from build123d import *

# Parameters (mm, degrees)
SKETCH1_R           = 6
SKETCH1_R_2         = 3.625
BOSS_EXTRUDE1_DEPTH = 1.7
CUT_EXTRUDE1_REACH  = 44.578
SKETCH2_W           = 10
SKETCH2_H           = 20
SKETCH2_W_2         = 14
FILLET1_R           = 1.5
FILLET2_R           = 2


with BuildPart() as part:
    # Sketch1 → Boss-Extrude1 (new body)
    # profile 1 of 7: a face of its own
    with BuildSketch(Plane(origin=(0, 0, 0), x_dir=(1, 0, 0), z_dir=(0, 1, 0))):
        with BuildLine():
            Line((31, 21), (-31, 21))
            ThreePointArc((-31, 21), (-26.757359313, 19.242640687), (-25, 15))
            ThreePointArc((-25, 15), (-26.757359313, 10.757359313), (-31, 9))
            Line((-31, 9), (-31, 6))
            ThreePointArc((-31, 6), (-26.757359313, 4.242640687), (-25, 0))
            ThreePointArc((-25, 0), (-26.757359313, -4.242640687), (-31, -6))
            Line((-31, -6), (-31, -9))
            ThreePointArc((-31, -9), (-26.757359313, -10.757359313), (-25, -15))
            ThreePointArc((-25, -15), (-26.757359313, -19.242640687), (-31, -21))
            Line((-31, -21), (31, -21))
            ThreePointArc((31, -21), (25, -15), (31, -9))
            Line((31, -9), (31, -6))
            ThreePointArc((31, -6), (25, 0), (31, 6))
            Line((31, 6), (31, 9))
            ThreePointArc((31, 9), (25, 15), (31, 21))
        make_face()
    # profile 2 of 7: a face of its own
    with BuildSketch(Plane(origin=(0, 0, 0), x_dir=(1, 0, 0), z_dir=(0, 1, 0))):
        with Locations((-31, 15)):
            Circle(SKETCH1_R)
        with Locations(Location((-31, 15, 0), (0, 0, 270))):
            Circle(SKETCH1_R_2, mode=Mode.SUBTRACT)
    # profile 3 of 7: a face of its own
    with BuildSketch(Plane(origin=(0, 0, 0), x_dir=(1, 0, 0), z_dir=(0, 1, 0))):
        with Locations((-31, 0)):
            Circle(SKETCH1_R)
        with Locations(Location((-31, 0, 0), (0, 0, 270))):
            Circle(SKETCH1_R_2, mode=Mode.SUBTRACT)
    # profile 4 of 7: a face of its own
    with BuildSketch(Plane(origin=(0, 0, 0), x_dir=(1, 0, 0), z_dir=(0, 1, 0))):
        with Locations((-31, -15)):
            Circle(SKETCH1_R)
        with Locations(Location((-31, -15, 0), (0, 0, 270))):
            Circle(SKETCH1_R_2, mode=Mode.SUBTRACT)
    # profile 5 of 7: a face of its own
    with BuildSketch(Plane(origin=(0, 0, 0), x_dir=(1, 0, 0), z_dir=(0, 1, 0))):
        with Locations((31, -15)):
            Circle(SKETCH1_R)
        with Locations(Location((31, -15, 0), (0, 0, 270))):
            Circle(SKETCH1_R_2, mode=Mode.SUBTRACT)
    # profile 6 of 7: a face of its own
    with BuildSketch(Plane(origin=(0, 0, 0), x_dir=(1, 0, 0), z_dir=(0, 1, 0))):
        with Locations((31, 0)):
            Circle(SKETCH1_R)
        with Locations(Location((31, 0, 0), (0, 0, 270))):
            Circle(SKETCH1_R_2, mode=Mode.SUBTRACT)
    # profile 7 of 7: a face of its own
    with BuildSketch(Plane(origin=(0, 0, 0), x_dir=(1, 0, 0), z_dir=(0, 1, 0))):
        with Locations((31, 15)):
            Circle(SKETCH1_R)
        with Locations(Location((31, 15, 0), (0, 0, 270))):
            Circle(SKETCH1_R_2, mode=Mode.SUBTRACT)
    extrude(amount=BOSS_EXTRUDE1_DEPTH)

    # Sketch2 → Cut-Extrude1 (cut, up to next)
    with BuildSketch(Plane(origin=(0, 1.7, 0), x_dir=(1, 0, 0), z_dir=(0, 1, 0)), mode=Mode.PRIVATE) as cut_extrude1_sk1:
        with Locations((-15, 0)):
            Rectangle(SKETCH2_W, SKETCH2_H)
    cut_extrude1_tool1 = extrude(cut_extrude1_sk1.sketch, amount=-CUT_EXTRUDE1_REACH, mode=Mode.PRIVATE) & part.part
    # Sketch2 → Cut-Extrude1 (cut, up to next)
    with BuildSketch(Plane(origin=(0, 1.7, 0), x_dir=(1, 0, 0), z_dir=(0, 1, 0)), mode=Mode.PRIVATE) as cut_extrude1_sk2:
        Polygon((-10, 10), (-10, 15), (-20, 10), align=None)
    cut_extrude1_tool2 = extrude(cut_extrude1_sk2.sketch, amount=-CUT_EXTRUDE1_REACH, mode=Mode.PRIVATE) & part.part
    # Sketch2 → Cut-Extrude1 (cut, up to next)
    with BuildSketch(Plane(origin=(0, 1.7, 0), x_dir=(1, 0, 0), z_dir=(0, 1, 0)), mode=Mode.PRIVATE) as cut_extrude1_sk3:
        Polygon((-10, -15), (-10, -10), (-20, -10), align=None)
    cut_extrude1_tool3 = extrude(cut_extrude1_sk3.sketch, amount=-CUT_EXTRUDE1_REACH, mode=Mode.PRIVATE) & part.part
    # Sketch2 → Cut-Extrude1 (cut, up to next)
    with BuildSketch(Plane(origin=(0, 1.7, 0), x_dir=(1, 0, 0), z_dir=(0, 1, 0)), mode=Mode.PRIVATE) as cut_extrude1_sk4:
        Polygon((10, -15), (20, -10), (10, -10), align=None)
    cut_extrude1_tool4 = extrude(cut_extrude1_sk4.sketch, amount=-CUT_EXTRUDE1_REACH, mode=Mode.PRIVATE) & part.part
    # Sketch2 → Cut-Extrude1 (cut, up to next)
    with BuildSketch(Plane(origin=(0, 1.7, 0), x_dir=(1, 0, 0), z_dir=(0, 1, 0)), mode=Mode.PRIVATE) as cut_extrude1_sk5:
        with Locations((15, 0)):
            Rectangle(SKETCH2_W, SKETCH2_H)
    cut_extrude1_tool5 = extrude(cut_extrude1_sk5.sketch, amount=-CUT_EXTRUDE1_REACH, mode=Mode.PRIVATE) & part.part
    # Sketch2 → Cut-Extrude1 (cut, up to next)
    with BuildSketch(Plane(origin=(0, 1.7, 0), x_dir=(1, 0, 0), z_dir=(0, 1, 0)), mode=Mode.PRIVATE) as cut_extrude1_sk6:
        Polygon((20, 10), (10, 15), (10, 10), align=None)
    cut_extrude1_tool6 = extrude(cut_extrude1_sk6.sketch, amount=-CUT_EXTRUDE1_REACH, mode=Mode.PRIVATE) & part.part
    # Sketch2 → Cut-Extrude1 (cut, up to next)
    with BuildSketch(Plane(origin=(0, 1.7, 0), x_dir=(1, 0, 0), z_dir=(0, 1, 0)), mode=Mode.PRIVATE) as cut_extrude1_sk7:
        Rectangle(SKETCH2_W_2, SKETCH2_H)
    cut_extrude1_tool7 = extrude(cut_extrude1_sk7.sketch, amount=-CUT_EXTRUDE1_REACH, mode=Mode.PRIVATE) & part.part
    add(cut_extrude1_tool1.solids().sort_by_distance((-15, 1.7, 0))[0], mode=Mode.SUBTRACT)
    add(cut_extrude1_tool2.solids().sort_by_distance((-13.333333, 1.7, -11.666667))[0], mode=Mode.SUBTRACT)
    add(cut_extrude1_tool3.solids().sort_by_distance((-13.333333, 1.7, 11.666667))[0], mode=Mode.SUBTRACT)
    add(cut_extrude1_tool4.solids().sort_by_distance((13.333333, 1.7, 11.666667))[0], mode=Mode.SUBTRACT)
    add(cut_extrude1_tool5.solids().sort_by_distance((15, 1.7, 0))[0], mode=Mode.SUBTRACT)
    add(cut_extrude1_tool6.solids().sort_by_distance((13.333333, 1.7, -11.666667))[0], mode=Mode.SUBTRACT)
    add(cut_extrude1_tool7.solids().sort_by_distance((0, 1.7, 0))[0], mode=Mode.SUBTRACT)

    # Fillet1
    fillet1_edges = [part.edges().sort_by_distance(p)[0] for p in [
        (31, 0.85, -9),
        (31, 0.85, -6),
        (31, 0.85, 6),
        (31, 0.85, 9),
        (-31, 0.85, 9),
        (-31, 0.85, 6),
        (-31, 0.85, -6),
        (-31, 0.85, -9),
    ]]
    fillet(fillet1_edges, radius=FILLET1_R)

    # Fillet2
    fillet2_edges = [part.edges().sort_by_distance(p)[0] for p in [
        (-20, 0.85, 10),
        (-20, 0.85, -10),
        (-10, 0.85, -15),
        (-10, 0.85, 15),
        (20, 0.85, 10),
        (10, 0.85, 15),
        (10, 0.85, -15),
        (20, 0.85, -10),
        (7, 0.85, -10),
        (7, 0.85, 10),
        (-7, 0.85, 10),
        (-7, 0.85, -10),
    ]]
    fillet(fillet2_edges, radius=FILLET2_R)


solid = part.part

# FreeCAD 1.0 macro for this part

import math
import FreeCAD as App
import Part
import Sketcher
from FreeCAD import Vector
Q = App.Units.Quantity


def edges_at(feature, points):
    """Names of the edges that pass closest to the given points."""
    edges = feature.Shape.Edges
    near = lambda p: min(range(len(edges)), key=lambda i: edges[i].distToShape(Part.Vertex(*p))[0])
    return sorted({f"Edge{near(p) + 1}" for p in points})

doc = App.newDocument("Part")
params = doc.addObject("Spreadsheet::Sheet", "Params")
for row, (alias, value) in enumerate([
    ("sketch1_radius", "6 mm"),
    ("sketch1_diameter", "7.25 mm"),
    ("sketch1_width", "62 mm"),
    ("sketch1_height", "3 mm"),
    ("pad1_length", "1.7 mm"),
    ("sketch2_width", "10 mm"),
    ("sketch2_height", "20 mm"),
    ("sketch3_width", "10 mm"),
    ("sketch3_height", "5 mm"),
    ("sketch4_width", "10 mm"),
    ("sketch4_height", "5 mm"),
    ("sketch5_width", "10 mm"),
    ("sketch5_height", "5 mm"),
    ("sketch6_width", "10 mm"),
    ("sketch6_height", "20 mm"),
    ("sketch7_width", "10 mm"),
    ("sketch7_height", "5 mm"),
    ("sketch8_width", "14 mm"),
    ("sketch8_height", "20 mm"),
    ("fillet_radius", "1.5 mm"),
    ("fillet2_radius", "2 mm"),
], start=1):
    params.set(f"A{row}", alias)
    params.set(f"B{row}", "=" + value)
    params.setAlias(f"B{row}", alias)

body = doc.addObject("PartDesign::Body", "Body")

# Sketch on XZ plane
sketch1 = body.newObject("Sketcher::SketchObject", "Sketch")
sketch1.AttachmentSupport = (doc.getObject("XZ_Plane"), [""])
sketch1.MapMode = "FlatFace"
sketch1.addGeometry([
    Part.LineSegment(Vector(31, -21, 0), Vector(-31, -21, 0)),  # 0
    Part.ArcOfCircle(Part.Circle(Vector(-31, -15, 0), Vector(0, 0, 1), 6), math.radians(90), math.radians(270)),  # 1
    Part.LineSegment(Vector(-31, -9, 0), Vector(-31, -6, 0)),  # 2
    Part.ArcOfCircle(Part.Circle(Vector(-31, 0, 0), Vector(0, 0, 1), 6), math.radians(90), math.radians(270)),  # 3
    Part.LineSegment(Vector(-31, 6, 0), Vector(-31, 9, 0)),  # 4
    Part.ArcOfCircle(Part.Circle(Vector(-31, 15, 0), Vector(0, 0, 1), 6), math.radians(90), math.radians(270)),  # 5
    Part.LineSegment(Vector(-31, 21, 0), Vector(31, 21, 0)),  # 6
    Part.ArcOfCircle(Part.Circle(Vector(31, 15, 0), Vector(0, 0, 1), 6), math.radians(-90), math.radians(90)),  # 7
    Part.LineSegment(Vector(31, 9, 0), Vector(31, 6, 0)),  # 8
    Part.ArcOfCircle(Part.Circle(Vector(31, 0, 0), Vector(0, 0, 1), 6), math.radians(-90), math.radians(90)),  # 9
    Part.LineSegment(Vector(31, -6, 0), Vector(31, -9, 0)),  # 10
    Part.ArcOfCircle(Part.Circle(Vector(31, -15, 0), Vector(0, 0, 1), 6), math.radians(-90), math.radians(90)),  # 11
    Part.Circle(Vector(-31, -15, 0), Vector(0, 0, 1), 3.6),  # 12
    Part.Circle(Vector(-31, 0, 0), Vector(0, 0, 1), 3.6),  # 13
    Part.Circle(Vector(-31, 15, 0), Vector(0, 0, 1), 3.6),  # 14
    Part.Circle(Vector(31, 15, 0), Vector(0, 0, 1), 3.6),  # 15
    Part.Circle(Vector(31, 0, 0), Vector(0, 0, 1), 3.6),  # 16
    Part.Circle(Vector(31, -15, 0), Vector(0, 0, 1), 3.6),  # 17
], False)
sketch1.addConstraint([
    Sketcher.Constraint("Tangent", 0, 2, 1, 2),
    Sketcher.Constraint("Coincident", 1, 1, 2, 1),
    Sketcher.Constraint("Coincident", 2, 2, 3, 2),
    Sketcher.Constraint("Coincident", 3, 1, 4, 1),
    Sketcher.Constraint("Coincident", 4, 2, 5, 2),
    Sketcher.Constraint("Tangent", 5, 1, 6, 1),
    Sketcher.Constraint("Tangent", 6, 2, 7, 2),
    Sketcher.Constraint("Coincident", 7, 1, 8, 1),
    Sketcher.Constraint("Coincident", 8, 2, 9, 2),
    Sketcher.Constraint("Coincident", 9, 1, 10, 1),
    Sketcher.Constraint("Coincident", 10, 2, 11, 2),
    Sketcher.Constraint("Tangent", 11, 1, 0, 1),
    Sketcher.Constraint("Horizontal", 0),
    Sketcher.Constraint("Vertical", 2),
    Sketcher.Constraint("Vertical", 4),
    Sketcher.Constraint("Horizontal", 6),
    Sketcher.Constraint("Vertical", 8),
    Sketcher.Constraint("Vertical", 10),
    Sketcher.Constraint("Coincident", 12, 3, 1, 3),
    Sketcher.Constraint("Coincident", 13, 3, 3, 3),
    Sketcher.Constraint("Coincident", 14, 3, 5, 3),
    Sketcher.Constraint("Coincident", 15, 3, 7, 3),
    Sketcher.Constraint("Coincident", 16, 3, 9, 3),
    Sketcher.Constraint("Coincident", 17, 3, 11, 3),
    Sketcher.Constraint("Equal", 1, 3),
    Sketcher.Constraint("Equal", 3, 5),
    Sketcher.Constraint("Equal", 5, 7),
    Sketcher.Constraint("Equal", 7, 9),
    Sketcher.Constraint("Equal", 9, 11),
    Sketcher.Constraint("Equal", 12, 13),
    Sketcher.Constraint("Equal", 13, 14),
    Sketcher.Constraint("Equal", 14, 15),
    Sketcher.Constraint("Equal", 15, 16),
    Sketcher.Constraint("Equal", 16, 17),
    Sketcher.Constraint("Symmetric", 1, 3, 7, 3, -1, 1),
    Sketcher.Constraint("Symmetric", 3, 3, 9, 3, -1, 1),
    Sketcher.Constraint("Symmetric", 3, 1, 8, 2, -2),
    Sketcher.Constraint("Vertical", 1, 3, 3, 3),
    Sketcher.Constraint("Vertical", 3, 3, 5, 3),
    Sketcher.Constraint("Vertical", 9, 3, 11, 3),
    Sketcher.Constraint("Vertical", 0, 2, 1, 1),
    Sketcher.Constraint("Vertical", 2, 2, 3, 1),
    Sketcher.Constraint("Vertical", 8, 2, 9, 1),
    Sketcher.Constraint("Radius", 1, Q("6 mm")),
    Sketcher.Constraint("Diameter", 12, Q("7.25 mm")),
    Sketcher.Constraint("DistanceX", 0, 2, 0, 1, Q("62 mm")),
    Sketcher.Constraint("DistanceY", 2, 1, 2, 2, Q("3 mm")),
])
sketch1.setExpression("Constraints[43]", "Params.sketch1_radius")
sketch1.setExpression("Constraints[44]", "Params.sketch1_diameter")
sketch1.setExpression("Constraints[45]", "Params.sketch1_width")
sketch1.setExpression("Constraints[46]", "Params.sketch1_height")
pad1 = body.newObject("PartDesign::Pad", "Pad")
pad1.Profile = sketch1
pad1.setExpression("Length", "Params.pad1_length")
pad1.Reversed = True

# Sketch on XZ plane
sketch2 = body.newObject("Sketcher::SketchObject", "Sketch001")
sketch2.AttachmentSupport = (doc.getObject("XZ_Plane"), [""])
sketch2.MapMode = "FlatFace"
sketch2.AttachmentOffset = App.Placement(Vector(0, 0, -1.7), App.Rotation())
sketch2.addGeometry([
    Part.LineSegment(Vector(-20, -10, 0), Vector(-20, 10, 0)),
    Part.LineSegment(Vector(-20, 10, 0), Vector(-10, 10, 0)),
    Part.LineSegment(Vector(-10, 10, 0), Vector(-10, -10, 0)),
    Part.LineSegment(Vector(-10, -10, 0), Vector(-20, -10, 0)),
], False)
sketch2.addConstraint([
    Sketcher.Constraint("Coincident", 0, 2, 1, 1),
    Sketcher.Constraint("Coincident", 1, 2, 2, 1),
    Sketcher.Constraint("Coincident", 2, 2, 3, 1),
    Sketcher.Constraint("Coincident", 3, 2, 0, 1),
    Sketcher.Constraint("Vertical", 0),
    Sketcher.Constraint("Horizontal", 1),
    Sketcher.Constraint("Vertical", 2),
    Sketcher.Constraint("Horizontal", 3),
    Sketcher.Constraint("DistanceX", 1, 1, 1, 2, Q("10 mm")),
    Sketcher.Constraint("DistanceY", 0, 1, 0, 2, Q("20 mm")),
    Sketcher.Constraint("DistanceX", 0, 2, -1, 1, Q("20 mm")),
    Sketcher.Constraint("DistanceY", -1, 1, 0, 2, Q("10 mm")),
])
sketch2.setExpression("Constraints[8]", "Params.sketch2_width")
sketch2.setExpression("Constraints[9]", "Params.sketch2_height")
pocket1 = body.newObject("PartDesign::Pocket", "Pocket")
pocket1.Profile = sketch2
pocket1.Type = "UpToFirst"
pocket1.Reversed = True

# Sketch on XZ plane
sketch3 = body.newObject("Sketcher::SketchObject", "Sketch002")
sketch3.AttachmentSupport = (doc.getObject("XZ_Plane"), [""])
sketch3.MapMode = "FlatFace"
sketch3.AttachmentOffset = App.Placement(Vector(0, 0, -1.7), App.Rotation())
sketch3.addGeometry([
    Part.LineSegment(Vector(-10, -10, 0), Vector(-10, -15, 0)),
    Part.LineSegment(Vector(-10, -15, 0), Vector(-20, -10, 0)),
    Part.LineSegment(Vector(-20, -10, 0), Vector(-10, -10, 0)),
], False)
sketch3.addConstraint([
    Sketcher.Constraint("Coincident", 0, 2, 1, 1),
    Sketcher.Constraint("Coincident", 1, 2, 2, 1),
    Sketcher.Constraint("Coincident", 2, 2, 0, 1),
    Sketcher.Constraint("Vertical", 0),
    Sketcher.Constraint("Horizontal", 2),
    Sketcher.Constraint("DistanceX", 2, 1, 2, 2, Q("10 mm")),
    Sketcher.Constraint("DistanceY", 0, 2, 0, 1, Q("5 mm")),
    Sketcher.Constraint("DistanceX", 0, 2, -1, 1, Q("10 mm")),
    Sketcher.Constraint("DistanceY", 0, 2, -1, 1, Q("15 mm")),
])
sketch3.setExpression("Constraints[5]", "Params.sketch3_width")
sketch3.setExpression("Constraints[6]", "Params.sketch3_height")
pocket2 = body.newObject("PartDesign::Pocket", "Pocket001")
pocket2.Profile = sketch3
pocket2.Type = "UpToFirst"
pocket2.Reversed = True

# Sketch on XZ plane
sketch4 = body.newObject("Sketcher::SketchObject", "Sketch003")
sketch4.AttachmentSupport = (doc.getObject("XZ_Plane"), [""])
sketch4.MapMode = "FlatFace"
sketch4.AttachmentOffset = App.Placement(Vector(0, 0, -1.7), App.Rotation())
sketch4.addGeometry([
    Part.LineSegment(Vector(-10, 15, 0), Vector(-10, 10, 0)),
    Part.LineSegment(Vector(-10, 10, 0), Vector(-20, 10, 0)),
    Part.LineSegment(Vector(-20, 10, 0), Vector(-10, 15, 0)),
], False)
sketch4.addConstraint([
    Sketcher.Constraint("Coincident", 0, 2, 1, 1),
    Sketcher.Constraint("Coincident", 1, 2, 2, 1),
    Sketcher.Constraint("Coincident", 2, 2, 0, 1),
    Sketcher.Constraint("Vertical", 0),
    Sketcher.Constraint("Horizontal", 1),
    Sketcher.Constraint("DistanceX", 1, 2, 1, 1, Q("10 mm")),
    Sketcher.Constraint("DistanceY", 0, 2, 0, 1, Q("5 mm")),
    Sketcher.Constraint("DistanceX", 0, 2, -1, 1, Q("10 mm")),
    Sketcher.Constraint("DistanceY", -1, 1, 0, 2, Q("10 mm")),
])
sketch4.setExpression("Constraints[5]", "Params.sketch4_width")
sketch4.setExpression("Constraints[6]", "Params.sketch4_height")
pocket3 = body.newObject("PartDesign::Pocket", "Pocket002")
pocket3.Profile = sketch4
pocket3.Type = "UpToFirst"
pocket3.Reversed = True

# Sketch on XZ plane
sketch5 = body.newObject("Sketcher::SketchObject", "Sketch004")
sketch5.AttachmentSupport = (doc.getObject("XZ_Plane"), [""])
sketch5.MapMode = "FlatFace"
sketch5.AttachmentOffset = App.Placement(Vector(0, 0, -1.7), App.Rotation())
sketch5.addGeometry([
    Part.LineSegment(Vector(10, 15, 0), Vector(20, 10, 0)),
    Part.LineSegment(Vector(20, 10, 0), Vector(10, 10, 0)),
    Part.LineSegment(Vector(10, 10, 0), Vector(10, 15, 0)),
], False)
sketch5.addConstraint([
    Sketcher.Constraint("Coincident", 0, 2, 1, 1),
    Sketcher.Constraint("Coincident", 1, 2, 2, 1),
    Sketcher.Constraint("Coincident", 2, 2, 0, 1),
    Sketcher.Constraint("Horizontal", 1),
    Sketcher.Constraint("Vertical", 2),
    Sketcher.Constraint("DistanceX", 1, 2, 1, 1, Q("10 mm")),
    Sketcher.Constraint("DistanceY", 2, 1, 2, 2, Q("5 mm")),
    Sketcher.Constraint("DistanceX", -1, 1, 0, 2, Q("20 mm")),
    Sketcher.Constraint("DistanceY", -1, 1, 0, 2, Q("10 mm")),
])
sketch5.setExpression("Constraints[5]", "Params.sketch5_width")
sketch5.setExpression("Constraints[6]", "Params.sketch5_height")
pocket4 = body.newObject("PartDesign::Pocket", "Pocket003")
pocket4.Profile = sketch5
pocket4.Type = "UpToFirst"
pocket4.Reversed = True

# Sketch on XZ plane
sketch6 = body.newObject("Sketcher::SketchObject", "Sketch005")
sketch6.AttachmentSupport = (doc.getObject("XZ_Plane"), [""])
sketch6.MapMode = "FlatFace"
sketch6.AttachmentOffset = App.Placement(Vector(0, 0, -1.7), App.Rotation())
sketch6.addGeometry([
    Part.LineSegment(Vector(10, -10, 0), Vector(10, 10, 0)),
    Part.LineSegment(Vector(10, 10, 0), Vector(20, 10, 0)),
    Part.LineSegment(Vector(20, 10, 0), Vector(20, -10, 0)),
    Part.LineSegment(Vector(20, -10, 0), Vector(10, -10, 0)),
], False)
sketch6.addConstraint([
    Sketcher.Constraint("Coincident", 0, 2, 1, 1),
    Sketcher.Constraint("Coincident", 1, 2, 2, 1),
    Sketcher.Constraint("Coincident", 2, 2, 3, 1),
    Sketcher.Constraint("Coincident", 3, 2, 0, 1),
    Sketcher.Constraint("Vertical", 0),
    Sketcher.Constraint("Horizontal", 1),
    Sketcher.Constraint("Vertical", 2),
    Sketcher.Constraint("Horizontal", 3),
    Sketcher.Constraint("DistanceX", 1, 1, 1, 2, Q("10 mm")),
    Sketcher.Constraint("DistanceY", 0, 1, 0, 2, Q("20 mm")),
    Sketcher.Constraint("DistanceX", -1, 1, 0, 2, Q("10 mm")),
    Sketcher.Constraint("DistanceY", -1, 1, 0, 2, Q("10 mm")),
])
sketch6.setExpression("Constraints[8]", "Params.sketch6_width")
sketch6.setExpression("Constraints[9]", "Params.sketch6_height")
pocket5 = body.newObject("PartDesign::Pocket", "Pocket004")
pocket5.Profile = sketch6
pocket5.Type = "UpToFirst"
pocket5.Reversed = True

# Sketch on XZ plane
sketch7 = body.newObject("Sketcher::SketchObject", "Sketch006")
sketch7.AttachmentSupport = (doc.getObject("XZ_Plane"), [""])
sketch7.MapMode = "FlatFace"
sketch7.AttachmentOffset = App.Placement(Vector(0, 0, -1.7), App.Rotation())
sketch7.addGeometry([
    Part.LineSegment(Vector(20, -10, 0), Vector(10, -15, 0)),
    Part.LineSegment(Vector(10, -15, 0), Vector(10, -10, 0)),
    Part.LineSegment(Vector(10, -10, 0), Vector(20, -10, 0)),
], False)
sketch7.addConstraint([
    Sketcher.Constraint("Coincident", 0, 2, 1, 1),
    Sketcher.Constraint("Coincident", 1, 2, 2, 1),
    Sketcher.Constraint("Coincident", 2, 2, 0, 1),
    Sketcher.Constraint("Vertical", 1),
    Sketcher.Constraint("Horizontal", 2),
    Sketcher.Constraint("DistanceX", 2, 1, 2, 2, Q("10 mm")),
    Sketcher.Constraint("DistanceY", 1, 1, 1, 2, Q("5 mm")),
    Sketcher.Constraint("DistanceX", -1, 1, 0, 2, Q("10 mm")),
    Sketcher.Constraint("DistanceY", 0, 2, -1, 1, Q("15 mm")),
])
sketch7.setExpression("Constraints[5]", "Params.sketch7_width")
sketch7.setExpression("Constraints[6]", "Params.sketch7_height")
pocket6 = body.newObject("PartDesign::Pocket", "Pocket005")
pocket6.Profile = sketch7
pocket6.Type = "UpToFirst"
pocket6.Reversed = True

# Sketch on XZ plane
sketch8 = body.newObject("Sketcher::SketchObject", "Sketch007")
sketch8.AttachmentSupport = (doc.getObject("XZ_Plane"), [""])
sketch8.MapMode = "FlatFace"
sketch8.AttachmentOffset = App.Placement(Vector(0, 0, -1.7), App.Rotation())
sketch8.addGeometry([
    Part.LineSegment(Vector(-7, -10, 0), Vector(-7, 10, 0)),
    Part.LineSegment(Vector(-7, 10, 0), Vector(7, 10, 0)),
    Part.LineSegment(Vector(7, 10, 0), Vector(7, -10, 0)),
    Part.LineSegment(Vector(7, -10, 0), Vector(-7, -10, 0)),
], False)
sketch8.addConstraint([
    Sketcher.Constraint("Coincident", 0, 2, 1, 1),
    Sketcher.Constraint("Coincident", 1, 2, 2, 1),
    Sketcher.Constraint("Coincident", 2, 2, 3, 1),
    Sketcher.Constraint("Coincident", 3, 2, 0, 1),
    Sketcher.Constraint("Vertical", 0),
    Sketcher.Constraint("Horizontal", 1),
    Sketcher.Constraint("Vertical", 2),
    Sketcher.Constraint("Horizontal", 3),
    Sketcher.Constraint("Symmetric", 0, 2, 2, 2, -1, 1),
    Sketcher.Constraint("DistanceX", 1, 1, 1, 2, Q("14 mm")),
    Sketcher.Constraint("DistanceY", 0, 1, 0, 2, Q("20 mm")),
])
sketch8.setExpression("Constraints[9]", "Params.sketch8_width")
sketch8.setExpression("Constraints[10]", "Params.sketch8_height")
pocket7 = body.newObject("PartDesign::Pocket", "Pocket006")
pocket7.Profile = sketch8
pocket7.Type = "UpToFirst"
pocket7.Reversed = True
doc.recompute()

fillet = body.newObject("PartDesign::Fillet", "Fillet")
fillet.Base = (pocket7, edges_at(pocket7, [
    (31, 0.85, -9),
    (31, 0.85, -6),
    (31, 0.85, 6),
    (31, 0.85, 9),
    (-31, 0.85, 9),
    (-31, 0.85, 6),
    (-31, 0.85, -6),
    (-31, 0.85, -9),
]))
fillet.setExpression("Radius", "Params.fillet_radius")
doc.recompute()

fillet2 = body.newObject("PartDesign::Fillet", "Fillet001")
fillet2.Base = (fillet, edges_at(fillet, [
    (-20, 0.85, 10),
    (-20, 0.85, -10),
    (-10, 0.85, -15),
    (-10, 0.85, 15),
    (20, 0.85, 10),
    (10, 0.85, 15),
    (10, 0.85, -15),
    (20, 0.85, -10),
    (7, 0.85, -10),
    (7, 0.85, 10),
    (-7, 0.85, 10),
    (-7, 0.85, -10),
]))
fillet2.setExpression("Radius", "Params.fillet2_radius")

doc.recompute()
